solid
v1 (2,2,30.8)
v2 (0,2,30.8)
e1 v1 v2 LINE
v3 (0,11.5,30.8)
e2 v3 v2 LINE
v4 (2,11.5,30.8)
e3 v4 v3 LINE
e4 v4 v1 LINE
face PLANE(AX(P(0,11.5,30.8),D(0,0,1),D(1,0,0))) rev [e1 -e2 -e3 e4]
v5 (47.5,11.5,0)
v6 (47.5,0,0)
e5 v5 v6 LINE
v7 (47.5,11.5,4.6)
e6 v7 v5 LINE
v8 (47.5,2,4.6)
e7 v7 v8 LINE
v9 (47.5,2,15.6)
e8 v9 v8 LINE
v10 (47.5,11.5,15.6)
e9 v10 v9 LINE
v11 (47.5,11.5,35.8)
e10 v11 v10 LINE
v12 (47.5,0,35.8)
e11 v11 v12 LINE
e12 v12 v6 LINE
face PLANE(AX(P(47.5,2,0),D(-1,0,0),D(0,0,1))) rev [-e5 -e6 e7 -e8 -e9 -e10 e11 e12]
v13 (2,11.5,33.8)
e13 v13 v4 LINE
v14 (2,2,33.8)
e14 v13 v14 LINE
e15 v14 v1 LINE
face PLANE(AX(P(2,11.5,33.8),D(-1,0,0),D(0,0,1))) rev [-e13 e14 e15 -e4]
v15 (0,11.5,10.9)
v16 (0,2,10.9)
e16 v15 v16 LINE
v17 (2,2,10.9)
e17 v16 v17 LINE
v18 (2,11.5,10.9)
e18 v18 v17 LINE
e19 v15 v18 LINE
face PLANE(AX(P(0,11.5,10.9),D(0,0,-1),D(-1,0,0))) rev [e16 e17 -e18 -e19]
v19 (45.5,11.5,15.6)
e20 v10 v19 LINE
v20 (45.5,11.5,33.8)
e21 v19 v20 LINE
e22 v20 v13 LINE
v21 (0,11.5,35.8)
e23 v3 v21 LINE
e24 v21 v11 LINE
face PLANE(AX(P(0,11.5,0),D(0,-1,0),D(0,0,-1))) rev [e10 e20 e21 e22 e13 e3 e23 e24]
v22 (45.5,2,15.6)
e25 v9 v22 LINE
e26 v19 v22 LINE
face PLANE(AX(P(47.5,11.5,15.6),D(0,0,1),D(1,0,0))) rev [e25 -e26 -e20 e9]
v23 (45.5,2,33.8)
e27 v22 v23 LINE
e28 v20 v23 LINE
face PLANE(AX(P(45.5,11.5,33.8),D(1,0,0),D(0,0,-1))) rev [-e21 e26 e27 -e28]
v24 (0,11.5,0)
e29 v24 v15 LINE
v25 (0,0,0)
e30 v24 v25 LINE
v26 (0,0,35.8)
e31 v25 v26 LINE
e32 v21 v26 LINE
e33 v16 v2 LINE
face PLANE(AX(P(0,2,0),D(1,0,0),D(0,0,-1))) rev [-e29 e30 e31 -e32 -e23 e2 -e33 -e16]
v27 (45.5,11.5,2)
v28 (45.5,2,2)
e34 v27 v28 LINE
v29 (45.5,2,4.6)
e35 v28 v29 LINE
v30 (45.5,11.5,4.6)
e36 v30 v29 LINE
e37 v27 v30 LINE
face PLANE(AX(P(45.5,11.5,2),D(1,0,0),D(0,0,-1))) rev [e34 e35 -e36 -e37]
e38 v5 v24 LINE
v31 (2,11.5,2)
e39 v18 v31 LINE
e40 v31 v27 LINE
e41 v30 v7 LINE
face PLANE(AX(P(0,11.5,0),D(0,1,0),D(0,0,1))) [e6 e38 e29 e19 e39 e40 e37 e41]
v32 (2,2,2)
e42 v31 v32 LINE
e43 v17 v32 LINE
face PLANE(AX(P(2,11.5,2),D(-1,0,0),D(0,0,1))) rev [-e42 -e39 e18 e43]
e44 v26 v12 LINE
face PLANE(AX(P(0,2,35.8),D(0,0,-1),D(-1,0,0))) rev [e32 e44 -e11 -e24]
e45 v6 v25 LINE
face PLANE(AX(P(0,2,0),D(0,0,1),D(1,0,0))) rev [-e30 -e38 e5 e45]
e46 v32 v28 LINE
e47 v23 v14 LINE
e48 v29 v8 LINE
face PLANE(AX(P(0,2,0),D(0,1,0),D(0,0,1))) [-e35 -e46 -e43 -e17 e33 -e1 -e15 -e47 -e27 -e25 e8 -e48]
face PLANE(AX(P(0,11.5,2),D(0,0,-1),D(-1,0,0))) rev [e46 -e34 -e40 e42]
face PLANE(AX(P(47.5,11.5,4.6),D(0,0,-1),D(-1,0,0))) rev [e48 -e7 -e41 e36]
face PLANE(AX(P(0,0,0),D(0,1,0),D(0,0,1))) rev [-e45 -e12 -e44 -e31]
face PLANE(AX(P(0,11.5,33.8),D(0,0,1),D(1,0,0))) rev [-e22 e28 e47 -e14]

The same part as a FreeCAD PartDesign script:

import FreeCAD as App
import Part
import Sketcher
from FreeCAD import Vector
Q = App.Units.Quantity


def add_polygon(sketch, points):
    """Adds a closed chain of lines whose ends are joined by coincident constraints."""
    first, n = sketch.GeometryCount, len(points)
    for a, b in zip(points, points[1:] + points[:1]):
        sketch.addGeometry(Part.LineSegment(App.Vector(*a, 0), App.Vector(*b, 0)), False)
    for i in range(n):
        sketch.addConstraint(Sketcher.Constraint("Coincident", first + i, 2, first + (i + 1) % n, 1))

doc = App.newDocument("Part")
body = doc.addObject("PartDesign::Body", "Body")

# Sketch on XZ plane
sketch1 = body.newObject("Sketcher::SketchObject", "Sketch")
sketch1.AttachmentSupport = (doc.getObject("XZ_Plane"), [""])
sketch1.MapMode = "FlatFace"
add_polygon(sketch1, [(0, 0), (0, 35.8), (47.5, 35.8), (47.5, 0)])  # lines 0-3
sketch1.addConstraint([
    Sketcher.Constraint("Vertical", 0),
    Sketcher.Constraint("Horizontal", 1),
    Sketcher.Constraint("Vertical", 2),
    Sketcher.Constraint("Horizontal", 3),
    Sketcher.Constraint("Coincident", 3, 2, -1, 1),
    Sketcher.Constraint("DistanceX", 1, 1, 1, 2, Q("47.5 mm")),
    Sketcher.Constraint("DistanceY", 0, 1, 0, 2, Q("35.8 mm")),
])
pad1 = body.newObject("PartDesign::Pad", "Pad")
pad1.Profile = sketch1
pad1.Length = 2
pad1.Reversed = True

# Sketch on XZ plane
sketch2 = body.newObject("Sketcher::SketchObject", "Sketch001")
sketch2.AttachmentSupport = (doc.getObject("XZ_Plane"), [""])
sketch2.MapMode = "FlatFace"
sketch2.AttachmentOffset = App.Placement(Vector(0, 0, -2), App.Rotation())
add_polygon(sketch2, [(0, 33.8), (0, 35.8), (47.5, 35.8), (47.5, 33.8)])  # lines 0-3
sketch2.addConstraint([
    Sketcher.Constraint("Vertical", 0),
    Sketcher.Constraint("Horizontal", 1),
    Sketcher.Constraint("Vertical", 2),
    Sketcher.Constraint("Horizontal", 3),
    Sketcher.Constraint("PointOnObject", 0, 2, -2),
    Sketcher.Constraint("DistanceY", 0, 1, 0, 2, Q("2 mm")),
    Sketcher.Constraint("DistanceX", 1, 1, 1, 2, Q("47.5 mm")),
    Sketcher.Constraint("DistanceY", -1, 1, 0, 2, Q("35.8 mm")),
])
pad2 = body.newObject("PartDesign::Pad", "Pad001")
pad2.Profile = sketch2
pad2.Length = 9.5
pad2.Reversed = True

# Sketch on XZ plane
sketch3 = body.newObject("Sketcher::SketchObject", "Sketch002")
sketch3.AttachmentSupport = (doc.getObject("XZ_Plane"), [""])
sketch3.MapMode = "FlatFace"
sketch3.AttachmentOffset = App.Placement(Vector(0, 0, -2), App.Rotation())
add_polygon(sketch3, [(0, 0), (0, 2), (47.5, 2), (47.5, 0)])  # lines 0-3
sketch3.addConstraint([
    Sketcher.Constraint("Vertical", 0),
    Sketcher.Constraint("Horizontal", 1),
    Sketcher.Constraint("Vertical", 2),
    Sketcher.Constraint("Horizontal", 3),
    Sketcher.Constraint("Coincident", 3, 2, -1, 1),
    Sketcher.Constraint("DistanceY", 0, 1, 0, 2, Q("2 mm")),
    Sketcher.Constraint("DistanceX", 1, 1, 1, 2, Q("47.5 mm")),
])
pad3 = body.newObject("PartDesign::Pad", "Pad002")
pad3.Profile = sketch3
pad3.Length = 9.5
pad3.Reversed = True

# Sketch on XZ plane
sketch4 = body.newObject("Sketcher::SketchObject", "Sketch003")
sketch4.AttachmentSupport = (doc.getObject("XZ_Plane"), [""])
sketch4.MapMode = "FlatFace"
sketch4.AttachmentOffset = App.Placement(Vector(0, 0, -2), App.Rotation())
add_polygon(sketch4, [(45.5, 2), (45.5, 4.6), (47.5, 4.6), (47.5, 2)])  # lines 0-3
sketch4.addConstraint([
    Sketcher.Constraint("Vertical", 0),
    Sketcher.Constraint("Horizontal", 1),
    Sketcher.Constraint("Vertical", 2),
    Sketcher.Constraint("Horizontal", 3),
    Sketcher.Constraint("DistanceX", 1, 1, 1, 2, Q("2 mm")),
    Sketcher.Constraint("DistanceY", 0, 1, 0, 2, Q("2.6 mm")),
    Sketcher.Constraint("DistanceY", -1, 1, 2, 2, Q("2 mm")),
    Sketcher.Constraint("DistanceX", -1, 1, 0, 2, Q("45.5 mm")),
])
pad4 = body.newObject("PartDesign::Pad", "Pad003")
pad4.Profile = sketch4
pad4.Length = 9.5
pad4.Reversed = True

# Sketch on XZ plane
sketch5 = body.newObject("Sketcher::SketchObject", "Sketch004")
sketch5.AttachmentSupport = (doc.getObject("XZ_Plane"), [""])
sketch5.MapMode = "FlatFace"
sketch5.AttachmentOffset = App.Placement(Vector(0, 0, -2), App.Rotation())
add_polygon(sketch5, [(45.5, 15.6), (45.5, 33.8), (47.5, 33.8), (47.5, 15.6)])  # lines 0-3
sketch5.addConstraint([
    Sketcher.Constraint("Vertical", 0),
    Sketcher.Constraint("Horizontal", 1),
    Sketcher.Constraint("Vertical", 2),
    Sketcher.Constraint("Horizontal", 3),
    Sketcher.Constraint("DistanceX", 1, 1, 1, 2, Q("2 mm")),
    Sketcher.Constraint("DistanceY", 0, 1, 0, 2, Q("18.2 mm")),
    Sketcher.Constraint("DistanceX", -1, 1, 0, 2, Q("45.5 mm")),
    Sketcher.Constraint("DistanceY", -1, 1, 0, 2, Q("33.8 mm")),
])
pad5 = body.newObject("PartDesign::Pad", "Pad004")
pad5.Profile = sketch5
pad5.Length = 9.5
pad5.Reversed = True

# Sketch on XZ plane
sketch6 = body.newObject("Sketcher::SketchObject", "Sketch005")
sketch6.AttachmentSupport = (doc.getObject("XZ_Plane"), [""])
sketch6.MapMode = "FlatFace"
sketch6.AttachmentOffset = App.Placement(Vector(0, 0, -2), App.Rotation())
add_polygon(sketch6, [(0, 2), (0, 10.9), (2, 10.9), (2, 2)])  # lines 0-3
sketch6.addConstraint([
    Sketcher.Constraint("Vertical", 0),
    Sketcher.Constraint("Horizontal", 1),
    Sketcher.Constraint("Vertical", 2),
    Sketcher.Constraint("Horizontal", 3),
    Sketcher.Constraint("PointOnObject", 0, 2, -2),
    Sketcher.Constraint("DistanceX", 1, 1, 1, 2, Q("2 mm")),
    Sketcher.Constraint("DistanceY", 0, 1, 0, 2, Q("8.9 mm")),
    Sketcher.Constraint("DistanceY", -1, 1, 2, 2, Q("2 mm")),
])
pad6 = body.newObject("PartDesign::Pad", "Pad005")
pad6.Profile = sketch6
pad6.Length = 9.5
pad6.Reversed = True

# Sketch on XZ plane
sketch7 = body.newObject("Sketcher::SketchObject", "Sketch006")
sketch7.AttachmentSupport = (doc.getObject("XZ_Plane"), [""])
sketch7.MapMode = "FlatFace"
sketch7.AttachmentOffset = App.Placement(Vector(0, 0, -2), App.Rotation())
add_polygon(sketch7, [(0, 30.8), (0, 33.8), (2, 33.8), (2, 30.8)])  # lines 0-3
sketch7.addConstraint([
    Sketcher.Constraint("Vertical", 0),
    Sketcher.Constraint("Horizontal", 1),
    Sketcher.Constraint("Vertical", 2),
    Sketcher.Constraint("Horizontal", 3),
    Sketcher.Constraint("PointOnObject", 0, 2, -2),
    Sketcher.Constraint("DistanceX", 1, 1, 1, 2, Q("2 mm")),
    Sketcher.Constraint("DistanceY", 0, 1, 0, 2, Q("3 mm")),
    Sketcher.Constraint("DistanceY", -1, 1, 0, 2, Q("33.8 mm")),
])
pad7 = body.newObject("PartDesign::Pad", "Pad006")
pad7.Profile = sketch7
pad7.Length = 9.5
pad7.Reversed = True

doc.recompute()
